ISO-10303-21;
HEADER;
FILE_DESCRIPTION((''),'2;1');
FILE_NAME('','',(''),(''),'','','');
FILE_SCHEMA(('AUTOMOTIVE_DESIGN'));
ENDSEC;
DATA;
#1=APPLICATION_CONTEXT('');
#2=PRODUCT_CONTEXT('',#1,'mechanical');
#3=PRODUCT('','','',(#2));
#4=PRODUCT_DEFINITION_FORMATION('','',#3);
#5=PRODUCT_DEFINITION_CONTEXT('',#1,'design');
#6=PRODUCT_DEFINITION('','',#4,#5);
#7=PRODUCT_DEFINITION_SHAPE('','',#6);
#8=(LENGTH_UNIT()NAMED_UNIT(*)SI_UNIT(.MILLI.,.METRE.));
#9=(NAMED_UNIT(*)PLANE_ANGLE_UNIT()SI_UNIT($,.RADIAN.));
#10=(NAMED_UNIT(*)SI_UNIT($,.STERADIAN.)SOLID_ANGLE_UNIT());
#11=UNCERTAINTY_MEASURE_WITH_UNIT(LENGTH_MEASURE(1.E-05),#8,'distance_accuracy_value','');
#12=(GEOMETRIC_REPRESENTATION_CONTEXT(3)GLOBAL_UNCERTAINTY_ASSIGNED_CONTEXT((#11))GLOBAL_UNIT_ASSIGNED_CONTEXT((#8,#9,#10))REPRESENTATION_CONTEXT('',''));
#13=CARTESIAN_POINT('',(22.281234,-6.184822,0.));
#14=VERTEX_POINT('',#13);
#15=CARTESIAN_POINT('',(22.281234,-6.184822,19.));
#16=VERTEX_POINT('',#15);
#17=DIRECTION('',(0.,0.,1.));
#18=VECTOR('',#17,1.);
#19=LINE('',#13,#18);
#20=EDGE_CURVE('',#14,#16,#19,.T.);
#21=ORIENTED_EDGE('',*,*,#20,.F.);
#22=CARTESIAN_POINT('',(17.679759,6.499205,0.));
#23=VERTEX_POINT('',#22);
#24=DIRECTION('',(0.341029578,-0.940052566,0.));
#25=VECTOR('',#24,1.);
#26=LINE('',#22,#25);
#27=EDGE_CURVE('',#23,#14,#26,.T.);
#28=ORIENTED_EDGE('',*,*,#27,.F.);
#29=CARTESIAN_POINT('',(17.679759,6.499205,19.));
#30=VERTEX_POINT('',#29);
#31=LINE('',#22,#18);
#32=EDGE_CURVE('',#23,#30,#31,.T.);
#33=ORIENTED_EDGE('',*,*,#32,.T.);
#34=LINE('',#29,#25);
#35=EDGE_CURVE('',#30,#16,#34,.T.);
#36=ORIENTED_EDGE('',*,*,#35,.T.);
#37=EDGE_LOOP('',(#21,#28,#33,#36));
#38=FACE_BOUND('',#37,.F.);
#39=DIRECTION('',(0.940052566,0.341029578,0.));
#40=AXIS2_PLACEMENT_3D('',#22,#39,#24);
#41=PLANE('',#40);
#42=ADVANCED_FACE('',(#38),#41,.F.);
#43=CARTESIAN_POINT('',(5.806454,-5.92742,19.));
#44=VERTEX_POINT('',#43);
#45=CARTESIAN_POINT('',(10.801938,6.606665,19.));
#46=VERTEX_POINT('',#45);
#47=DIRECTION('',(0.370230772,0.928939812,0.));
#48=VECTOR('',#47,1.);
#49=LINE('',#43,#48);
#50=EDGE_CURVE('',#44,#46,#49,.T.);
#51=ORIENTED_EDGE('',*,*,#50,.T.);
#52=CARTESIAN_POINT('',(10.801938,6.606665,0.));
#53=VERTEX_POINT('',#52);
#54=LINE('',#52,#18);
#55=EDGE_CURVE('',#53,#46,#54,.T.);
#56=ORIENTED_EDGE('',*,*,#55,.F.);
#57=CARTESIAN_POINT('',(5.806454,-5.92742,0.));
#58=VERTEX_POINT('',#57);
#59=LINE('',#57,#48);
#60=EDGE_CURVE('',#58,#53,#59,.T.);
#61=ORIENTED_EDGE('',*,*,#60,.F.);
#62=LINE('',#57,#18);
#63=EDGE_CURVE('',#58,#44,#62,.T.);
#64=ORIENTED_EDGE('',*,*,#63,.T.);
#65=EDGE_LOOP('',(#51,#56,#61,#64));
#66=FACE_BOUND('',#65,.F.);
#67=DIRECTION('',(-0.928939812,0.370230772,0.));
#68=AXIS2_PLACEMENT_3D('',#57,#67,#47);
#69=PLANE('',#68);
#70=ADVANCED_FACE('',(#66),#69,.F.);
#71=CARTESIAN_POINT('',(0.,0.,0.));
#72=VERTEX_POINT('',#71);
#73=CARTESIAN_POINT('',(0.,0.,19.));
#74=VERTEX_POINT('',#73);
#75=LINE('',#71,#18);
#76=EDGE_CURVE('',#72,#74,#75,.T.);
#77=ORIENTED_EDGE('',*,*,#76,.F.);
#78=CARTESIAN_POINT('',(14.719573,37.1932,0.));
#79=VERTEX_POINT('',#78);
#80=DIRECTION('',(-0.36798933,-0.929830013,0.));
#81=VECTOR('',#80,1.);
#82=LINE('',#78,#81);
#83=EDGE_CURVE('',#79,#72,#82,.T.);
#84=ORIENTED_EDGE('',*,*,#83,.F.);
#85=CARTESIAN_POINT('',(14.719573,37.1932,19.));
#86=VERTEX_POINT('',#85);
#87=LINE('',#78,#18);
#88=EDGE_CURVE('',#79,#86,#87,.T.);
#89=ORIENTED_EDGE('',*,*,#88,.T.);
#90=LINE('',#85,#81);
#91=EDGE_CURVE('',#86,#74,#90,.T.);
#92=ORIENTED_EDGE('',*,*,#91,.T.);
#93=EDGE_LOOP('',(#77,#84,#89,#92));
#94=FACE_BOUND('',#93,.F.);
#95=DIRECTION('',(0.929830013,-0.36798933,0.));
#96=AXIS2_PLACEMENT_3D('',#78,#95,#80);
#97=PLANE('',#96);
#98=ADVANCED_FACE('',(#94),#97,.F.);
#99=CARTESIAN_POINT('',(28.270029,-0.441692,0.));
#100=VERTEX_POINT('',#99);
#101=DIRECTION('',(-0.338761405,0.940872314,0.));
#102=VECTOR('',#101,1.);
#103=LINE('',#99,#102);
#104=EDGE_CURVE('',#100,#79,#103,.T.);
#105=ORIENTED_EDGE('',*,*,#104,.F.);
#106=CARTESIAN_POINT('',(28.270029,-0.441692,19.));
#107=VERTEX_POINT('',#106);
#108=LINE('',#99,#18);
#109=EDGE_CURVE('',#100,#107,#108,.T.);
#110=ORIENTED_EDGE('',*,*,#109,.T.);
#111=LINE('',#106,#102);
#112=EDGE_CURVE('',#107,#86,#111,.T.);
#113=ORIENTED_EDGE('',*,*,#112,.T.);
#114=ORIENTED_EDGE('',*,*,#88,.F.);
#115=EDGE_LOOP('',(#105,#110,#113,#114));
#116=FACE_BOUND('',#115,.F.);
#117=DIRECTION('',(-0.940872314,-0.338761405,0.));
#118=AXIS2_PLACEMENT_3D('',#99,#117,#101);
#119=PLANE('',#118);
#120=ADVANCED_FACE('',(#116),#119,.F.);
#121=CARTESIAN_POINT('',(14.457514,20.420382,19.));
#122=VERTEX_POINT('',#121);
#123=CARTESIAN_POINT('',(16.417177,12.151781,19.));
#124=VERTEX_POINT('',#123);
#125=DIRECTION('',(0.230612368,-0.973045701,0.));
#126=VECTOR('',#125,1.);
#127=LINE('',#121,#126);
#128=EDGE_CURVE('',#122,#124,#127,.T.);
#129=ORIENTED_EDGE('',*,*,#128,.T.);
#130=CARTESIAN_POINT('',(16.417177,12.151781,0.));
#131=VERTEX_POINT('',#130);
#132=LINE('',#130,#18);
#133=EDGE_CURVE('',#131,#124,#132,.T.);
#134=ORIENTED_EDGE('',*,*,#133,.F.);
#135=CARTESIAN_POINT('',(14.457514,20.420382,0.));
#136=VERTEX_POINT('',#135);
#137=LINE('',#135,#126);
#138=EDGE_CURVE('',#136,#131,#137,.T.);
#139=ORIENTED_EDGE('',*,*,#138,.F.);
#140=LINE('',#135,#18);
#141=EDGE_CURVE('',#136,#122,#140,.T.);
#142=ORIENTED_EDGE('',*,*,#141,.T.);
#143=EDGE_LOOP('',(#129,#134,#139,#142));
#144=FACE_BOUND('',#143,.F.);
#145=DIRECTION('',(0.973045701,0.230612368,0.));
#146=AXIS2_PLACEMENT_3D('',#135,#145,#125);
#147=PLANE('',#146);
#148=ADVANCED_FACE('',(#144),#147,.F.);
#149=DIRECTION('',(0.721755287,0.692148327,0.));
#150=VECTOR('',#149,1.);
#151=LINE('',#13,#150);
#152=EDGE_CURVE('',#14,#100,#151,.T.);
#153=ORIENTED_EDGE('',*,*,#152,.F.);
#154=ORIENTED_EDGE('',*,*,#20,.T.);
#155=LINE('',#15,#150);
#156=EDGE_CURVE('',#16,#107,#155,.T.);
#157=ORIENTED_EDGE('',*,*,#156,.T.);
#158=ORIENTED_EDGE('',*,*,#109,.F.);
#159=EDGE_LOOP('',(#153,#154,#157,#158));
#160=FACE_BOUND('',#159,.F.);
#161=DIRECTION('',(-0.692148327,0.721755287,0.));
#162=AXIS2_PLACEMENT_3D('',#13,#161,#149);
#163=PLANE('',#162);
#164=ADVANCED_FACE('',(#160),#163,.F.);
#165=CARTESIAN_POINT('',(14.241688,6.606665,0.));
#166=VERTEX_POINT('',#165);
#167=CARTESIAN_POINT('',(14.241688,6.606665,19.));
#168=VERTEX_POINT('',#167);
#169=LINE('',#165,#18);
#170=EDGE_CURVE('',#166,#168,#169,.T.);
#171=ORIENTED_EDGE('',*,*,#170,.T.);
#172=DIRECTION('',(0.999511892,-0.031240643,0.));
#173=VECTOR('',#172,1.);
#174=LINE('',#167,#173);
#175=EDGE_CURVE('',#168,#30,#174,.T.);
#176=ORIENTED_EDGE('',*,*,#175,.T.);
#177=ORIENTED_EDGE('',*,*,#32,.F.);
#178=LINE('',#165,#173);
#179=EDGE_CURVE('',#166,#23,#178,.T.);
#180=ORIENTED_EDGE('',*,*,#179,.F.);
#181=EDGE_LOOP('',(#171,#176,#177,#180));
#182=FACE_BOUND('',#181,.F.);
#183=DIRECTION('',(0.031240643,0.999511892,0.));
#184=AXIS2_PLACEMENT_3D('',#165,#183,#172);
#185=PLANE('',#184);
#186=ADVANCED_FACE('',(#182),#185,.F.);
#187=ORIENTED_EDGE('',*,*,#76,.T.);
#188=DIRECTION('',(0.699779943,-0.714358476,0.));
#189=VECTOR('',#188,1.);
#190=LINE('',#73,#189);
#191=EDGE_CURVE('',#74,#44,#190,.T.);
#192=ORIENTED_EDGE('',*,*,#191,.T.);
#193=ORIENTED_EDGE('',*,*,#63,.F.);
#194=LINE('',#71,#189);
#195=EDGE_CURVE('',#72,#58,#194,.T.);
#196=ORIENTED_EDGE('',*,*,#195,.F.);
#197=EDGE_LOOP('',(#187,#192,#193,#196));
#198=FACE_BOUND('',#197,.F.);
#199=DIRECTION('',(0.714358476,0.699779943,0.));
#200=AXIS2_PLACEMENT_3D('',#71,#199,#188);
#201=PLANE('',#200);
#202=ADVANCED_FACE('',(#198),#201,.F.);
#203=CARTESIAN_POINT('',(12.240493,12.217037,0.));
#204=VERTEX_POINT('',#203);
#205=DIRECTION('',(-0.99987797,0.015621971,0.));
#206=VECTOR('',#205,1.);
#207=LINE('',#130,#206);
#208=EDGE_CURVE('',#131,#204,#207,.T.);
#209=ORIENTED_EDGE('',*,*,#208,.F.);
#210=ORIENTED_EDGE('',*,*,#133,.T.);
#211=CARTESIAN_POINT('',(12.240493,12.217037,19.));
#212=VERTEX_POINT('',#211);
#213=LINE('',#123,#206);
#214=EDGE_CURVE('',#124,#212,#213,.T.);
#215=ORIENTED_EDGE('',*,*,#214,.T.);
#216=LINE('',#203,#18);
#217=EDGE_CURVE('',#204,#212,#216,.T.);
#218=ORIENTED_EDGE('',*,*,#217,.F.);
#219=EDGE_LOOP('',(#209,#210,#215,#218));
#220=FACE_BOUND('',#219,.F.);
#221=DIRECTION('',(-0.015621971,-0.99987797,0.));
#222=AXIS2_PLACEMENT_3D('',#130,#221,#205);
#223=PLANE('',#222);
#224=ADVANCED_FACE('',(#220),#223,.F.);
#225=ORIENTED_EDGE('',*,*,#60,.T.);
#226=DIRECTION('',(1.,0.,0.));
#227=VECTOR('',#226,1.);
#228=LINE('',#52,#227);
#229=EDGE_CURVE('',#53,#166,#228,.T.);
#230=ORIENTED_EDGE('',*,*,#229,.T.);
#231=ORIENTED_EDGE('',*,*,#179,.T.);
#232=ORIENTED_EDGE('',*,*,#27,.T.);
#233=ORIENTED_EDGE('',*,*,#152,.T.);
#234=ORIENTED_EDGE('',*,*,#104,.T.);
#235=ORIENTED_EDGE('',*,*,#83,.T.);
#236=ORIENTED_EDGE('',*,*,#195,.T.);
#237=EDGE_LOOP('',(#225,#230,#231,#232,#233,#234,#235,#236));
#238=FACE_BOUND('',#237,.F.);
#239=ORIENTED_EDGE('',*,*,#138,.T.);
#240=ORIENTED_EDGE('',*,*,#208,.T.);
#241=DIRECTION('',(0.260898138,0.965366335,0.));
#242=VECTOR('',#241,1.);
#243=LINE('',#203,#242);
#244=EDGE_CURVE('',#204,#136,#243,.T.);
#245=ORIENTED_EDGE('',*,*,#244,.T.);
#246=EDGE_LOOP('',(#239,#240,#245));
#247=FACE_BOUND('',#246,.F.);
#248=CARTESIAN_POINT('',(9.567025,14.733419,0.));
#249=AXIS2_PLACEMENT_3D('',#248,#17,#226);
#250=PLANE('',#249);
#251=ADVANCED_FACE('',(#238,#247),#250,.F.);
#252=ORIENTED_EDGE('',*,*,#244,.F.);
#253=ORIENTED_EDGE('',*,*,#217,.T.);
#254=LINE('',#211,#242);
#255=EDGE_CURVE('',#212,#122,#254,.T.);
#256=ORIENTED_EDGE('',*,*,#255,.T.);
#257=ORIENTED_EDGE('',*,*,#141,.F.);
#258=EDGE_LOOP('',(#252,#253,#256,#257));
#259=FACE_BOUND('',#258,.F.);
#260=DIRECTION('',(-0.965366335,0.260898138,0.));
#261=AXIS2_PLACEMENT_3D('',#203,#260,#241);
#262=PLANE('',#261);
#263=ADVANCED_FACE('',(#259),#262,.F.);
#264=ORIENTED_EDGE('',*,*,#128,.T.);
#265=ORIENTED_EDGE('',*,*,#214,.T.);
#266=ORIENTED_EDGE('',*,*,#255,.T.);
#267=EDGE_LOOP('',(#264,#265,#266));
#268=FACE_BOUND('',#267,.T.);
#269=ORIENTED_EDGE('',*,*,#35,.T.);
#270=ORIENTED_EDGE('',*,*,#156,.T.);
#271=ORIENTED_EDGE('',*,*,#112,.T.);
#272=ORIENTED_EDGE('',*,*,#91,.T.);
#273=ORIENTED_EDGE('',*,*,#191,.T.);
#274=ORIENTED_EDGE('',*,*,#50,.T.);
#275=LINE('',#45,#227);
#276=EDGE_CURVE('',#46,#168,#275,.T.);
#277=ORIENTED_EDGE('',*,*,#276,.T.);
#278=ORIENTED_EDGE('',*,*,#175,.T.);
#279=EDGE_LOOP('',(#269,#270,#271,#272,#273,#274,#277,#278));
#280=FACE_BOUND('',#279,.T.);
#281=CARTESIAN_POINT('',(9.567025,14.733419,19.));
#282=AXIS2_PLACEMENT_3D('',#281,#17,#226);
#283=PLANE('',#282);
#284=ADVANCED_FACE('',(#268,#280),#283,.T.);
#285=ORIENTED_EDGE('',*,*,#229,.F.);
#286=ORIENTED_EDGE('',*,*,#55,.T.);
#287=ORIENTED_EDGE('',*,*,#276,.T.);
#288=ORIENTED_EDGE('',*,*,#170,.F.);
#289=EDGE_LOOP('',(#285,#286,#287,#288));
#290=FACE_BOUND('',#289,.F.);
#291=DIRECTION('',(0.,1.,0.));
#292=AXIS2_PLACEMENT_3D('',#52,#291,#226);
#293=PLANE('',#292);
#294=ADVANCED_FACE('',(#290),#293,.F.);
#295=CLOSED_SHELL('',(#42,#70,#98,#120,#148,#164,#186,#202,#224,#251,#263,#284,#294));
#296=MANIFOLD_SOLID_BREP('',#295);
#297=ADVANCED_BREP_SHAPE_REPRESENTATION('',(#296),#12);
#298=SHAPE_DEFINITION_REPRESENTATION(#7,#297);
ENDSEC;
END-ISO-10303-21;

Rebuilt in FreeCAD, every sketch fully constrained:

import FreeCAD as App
import Part
import Sketcher


def add_polygon(sketch, points):
    """Adds a closed chain of lines whose ends are joined by coincident constraints."""
    first, n = sketch.GeometryCount, len(points)
    for a, b in zip(points, points[1:] + points[:1]):
        sketch.addGeometry(Part.LineSegment(App.Vector(*a, 0), App.Vector(*b, 0)), False)
    for i in range(n):
        sketch.addConstraint(Sketcher.Constraint("Coincident", first + i, 2, first + (i + 1) % n, 1))

doc = App.newDocument("Part")
body = doc.addObject("PartDesign::Body", "Body")

# Sketch on XY plane
sketch1 = doc.addObject("Sketcher::SketchObject", "Sketch")
body.addObject(sketch1)
sketch1.AttachmentSupport = (doc.XY_Plane, [""])
sketch1.MapMode = "FlatFace"
add_polygon(sketch1, [(14.719573, 37.1932), (0, 0), (5.806454, -5.92742), (10.801938, 6.606665), (14.241688, 6.606665), (17.679759, 6.499205), (22.281234, -6.184822), (28.270029, -0.441692)])  # lines 0-7
add_polygon(sketch1, [(12.240493, 12.217037), (14.457514, 20.420382), (16.417177, 12.151781)])  # lines 8-10
sketch1.addConstraint(Sketcher.Constraint("Horizontal", 3))
sketch1.addConstraint(Sketcher.Constraint("Coincident", 0, 2, -1, 1))
sketch1.addConstraint(Sketcher.Constraint("Distance", 0, 39.999999))
sketch1.addConstraint(Sketcher.Constraint("Distance", 7, 39.999999))
sketch1.addConstraint(Sketcher.Constraint("DistanceX", 3, 1, 3, 2, 3.43975))
sketch1.addConstraint(Sketcher.Constraint("DistanceY", -1, 1, 7, 2, 37.1932))
sketch1.addConstraint(Sketcher.Constraint("DistanceY", 5, 2, 1, 2, 0.257402))
sketch1.addConstraint(Sketcher.Constraint("DistanceY", 9, 2, 8, 2, 8.268601))
sketch1.addConstraint(Sketcher.Constraint("Distance", 4, 3.43975))
sketch1.addConstraint(Sketcher.Constraint("Distance", 5, 13.492891))
sketch1.addConstraint(Sketcher.Constraint("Distance", 8, 8.49765))
sketch1.addConstraint(Sketcher.Constraint("Distance", 9, 8.497649))
sketch1.addConstraint(Sketcher.Constraint("DistanceY", 1, 2, -1, 1, 5.92742))
sketch1.addConstraint(Sketcher.Constraint("DistanceX", -1, 1, 4, 2, 17.679759))
sketch1.addConstraint(Sketcher.Constraint("DistanceX", -1, 1, 6, 2, 28.270029))
sketch1.addConstraint(Sketcher.Constraint("DistanceY", -1, 1, 8, 2, 20.420382))
sketch1.addConstraint(Sketcher.Constraint("DistanceX", 3, 2, 4, 2, 3.438071))
sketch1.addConstraint(Sketcher.Constraint("DistanceX", 1, 2, 5, 2, 16.47478))
sketch1.addConstraint(Sketcher.Constraint("DistanceX", 8, 2, 7, 2, 0.262059))
sketch1.addConstraint(Sketcher.Constraint("DistanceY", 4, 2, 10, 2, 5.717832))
sketch1.addConstraint(Sketcher.Constraint("DistanceX", 10, 2, 8, 2, 2.217021))
pad1 = doc.addObject("PartDesign::Pad", "Pad")
body.addObject(pad1)
pad1.Profile = sketch1
pad1.Length = 19

doc.recompute()
